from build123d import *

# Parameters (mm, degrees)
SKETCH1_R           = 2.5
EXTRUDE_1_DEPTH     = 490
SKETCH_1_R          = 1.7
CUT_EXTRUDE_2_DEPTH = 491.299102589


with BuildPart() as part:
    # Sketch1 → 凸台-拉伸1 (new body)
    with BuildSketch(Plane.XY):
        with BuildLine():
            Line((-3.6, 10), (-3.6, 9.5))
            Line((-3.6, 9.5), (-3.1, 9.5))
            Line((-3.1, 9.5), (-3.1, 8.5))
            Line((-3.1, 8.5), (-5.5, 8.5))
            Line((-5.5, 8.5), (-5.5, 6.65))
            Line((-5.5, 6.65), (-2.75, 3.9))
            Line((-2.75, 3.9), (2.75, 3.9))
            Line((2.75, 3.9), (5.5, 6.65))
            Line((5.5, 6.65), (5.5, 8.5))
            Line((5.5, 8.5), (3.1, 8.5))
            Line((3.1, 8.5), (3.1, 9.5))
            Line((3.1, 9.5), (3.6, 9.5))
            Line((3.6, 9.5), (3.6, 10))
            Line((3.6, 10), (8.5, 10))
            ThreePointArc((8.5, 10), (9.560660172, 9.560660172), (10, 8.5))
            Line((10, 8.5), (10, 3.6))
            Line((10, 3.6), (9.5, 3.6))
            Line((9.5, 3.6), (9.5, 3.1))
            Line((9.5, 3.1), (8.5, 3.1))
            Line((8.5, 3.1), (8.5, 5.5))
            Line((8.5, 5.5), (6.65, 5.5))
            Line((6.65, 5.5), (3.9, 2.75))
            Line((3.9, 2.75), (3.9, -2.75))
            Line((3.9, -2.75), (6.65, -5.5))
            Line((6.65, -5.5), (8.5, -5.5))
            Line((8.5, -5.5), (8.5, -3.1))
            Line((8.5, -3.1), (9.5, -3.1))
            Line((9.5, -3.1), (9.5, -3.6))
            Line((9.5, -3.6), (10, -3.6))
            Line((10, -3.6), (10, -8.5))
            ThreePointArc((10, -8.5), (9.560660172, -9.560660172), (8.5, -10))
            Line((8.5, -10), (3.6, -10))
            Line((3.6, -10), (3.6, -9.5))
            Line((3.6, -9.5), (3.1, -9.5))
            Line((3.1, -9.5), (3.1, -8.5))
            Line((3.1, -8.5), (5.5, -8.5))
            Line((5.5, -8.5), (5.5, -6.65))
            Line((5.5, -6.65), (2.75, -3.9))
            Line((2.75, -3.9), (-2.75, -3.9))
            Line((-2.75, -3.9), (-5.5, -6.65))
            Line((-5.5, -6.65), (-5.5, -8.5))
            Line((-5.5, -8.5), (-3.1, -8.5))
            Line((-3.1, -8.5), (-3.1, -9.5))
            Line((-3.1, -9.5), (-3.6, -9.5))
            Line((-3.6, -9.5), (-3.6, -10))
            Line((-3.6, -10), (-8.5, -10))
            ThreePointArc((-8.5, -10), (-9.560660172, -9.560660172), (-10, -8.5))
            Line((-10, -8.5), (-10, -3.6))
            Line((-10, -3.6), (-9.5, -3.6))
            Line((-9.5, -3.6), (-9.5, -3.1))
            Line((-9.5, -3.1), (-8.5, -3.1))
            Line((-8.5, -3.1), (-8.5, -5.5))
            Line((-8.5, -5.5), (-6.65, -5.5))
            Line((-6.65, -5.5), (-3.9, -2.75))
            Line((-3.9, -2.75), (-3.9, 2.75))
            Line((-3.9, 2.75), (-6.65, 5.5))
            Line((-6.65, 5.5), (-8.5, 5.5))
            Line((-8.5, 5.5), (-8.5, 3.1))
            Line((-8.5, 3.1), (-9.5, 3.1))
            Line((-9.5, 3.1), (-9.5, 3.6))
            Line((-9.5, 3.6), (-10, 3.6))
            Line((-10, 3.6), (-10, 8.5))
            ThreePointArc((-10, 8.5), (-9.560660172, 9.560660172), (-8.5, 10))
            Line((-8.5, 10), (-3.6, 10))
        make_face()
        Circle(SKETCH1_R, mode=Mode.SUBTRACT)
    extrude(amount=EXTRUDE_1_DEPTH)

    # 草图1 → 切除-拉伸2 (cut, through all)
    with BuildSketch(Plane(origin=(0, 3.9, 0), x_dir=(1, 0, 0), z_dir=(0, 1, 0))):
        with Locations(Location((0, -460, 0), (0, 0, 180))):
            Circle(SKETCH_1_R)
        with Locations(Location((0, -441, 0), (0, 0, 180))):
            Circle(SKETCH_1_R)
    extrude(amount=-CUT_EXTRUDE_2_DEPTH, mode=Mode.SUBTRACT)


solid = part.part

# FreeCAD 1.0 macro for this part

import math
import FreeCAD as App
import Part
import Sketcher

V = App.Vector
Q = App.Units.Quantity

doc = App.newDocument("Part")
params = doc.addObject("Spreadsheet::Sheet", "Params")
for row, (alias, value) in enumerate([
    ("sketch1_diameter", "5 mm"),
    ("sketch1_radius", "1.5 mm"),
    ("sketch1_width", "1 mm"),
    ("sketch1_width2", "4.9 mm"),
    ("sketch1_width3", "2.4 mm"),
    ("pad1_length", "490 mm"),
    ("sketch2_diameter", "3.4 mm"),
], start=1):
    params.set(f"A{row}", alias)
    params.set(f"B{row}", "=" + value)
    params.setAlias(f"B{row}", alias)

body = doc.addObject("PartDesign::Body", "Body")

# Sketch on XY plane
sketch1 = body.newObject("Sketcher::SketchObject", "Sketch")
sketch1.AttachmentSupport = (doc.getObject("XY_Plane"), [""])
sketch1.MapMode = "FlatFace"
sketch1.addGeometry(Part.LineSegment(V(-3.6, 9.5, 0), V(-3.6, 10, 0)), False)
sketch1.addGeometry(Part.LineSegment(V(-3.6, 10, 0), V(-8.5, 10, 0)), False)
sketch1.addGeometry(Part.ArcOfCircle(Part.Circle(V(-8.5, 8.5, 0), V(0, 0, 1), 1.5), math.radians(90), math.radians(180)), False)
sketch1.addGeometry(Part.LineSegment(V(-10, 8.5, 0), V(-10, 3.6, 0)), False)
sketch1.addGeometry(Part.LineSegment(V(-10, 3.6, 0), V(-9.5, 3.6, 0)), False)
sketch1.addGeometry(Part.LineSegment(V(-9.5, 3.6, 0), V(-9.5, 3.1, 0)), False)
sketch1.addGeometry(Part.LineSegment(V(-9.5, 3.1, 0), V(-8.5, 3.1, 0)), False)
sketch1.addGeometry(Part.LineSegment(V(-8.5, 3.1, 0), V(-8.5, 5.5, 0)), False)
sketch1.addGeometry(Part.LineSegment(V(-8.5, 5.5, 0), V(-6.7, 5.5, 0)), False)
sketch1.addGeometry(Part.LineSegment(V(-6.7, 5.5, 0), V(-3.9, 2.8, 0)), False)
sketch1.addGeometry(Part.LineSegment(V(-3.9, 2.8, 0), V(-3.9, -2.8, 0)), False)
sketch1.addGeometry(Part.LineSegment(V(-3.9, -2.8, 0), V(-6.7, -5.5, 0)), False)
sketch1.addGeometry(Part.LineSegment(V(-6.7, -5.5, 0), V(-8.5, -5.5, 0)), False)
sketch1.addGeometry(Part.LineSegment(V(-8.5, -5.5, 0), V(-8.5, -3.1, 0)), False)
sketch1.addGeometry(Part.LineSegment(V(-8.5, -3.1, 0), V(-9.5, -3.1, 0)), False)
sketch1.addGeometry(Part.LineSegment(V(-9.5, -3.1, 0), V(-9.5, -3.6, 0)), False)
sketch1.addGeometry(Part.LineSegment(V(-9.5, -3.6, 0), V(-10, -3.6, 0)), False)
sketch1.addGeometry(Part.LineSegment(V(-10, -3.6, 0), V(-10, -8.5, 0)), False)
sketch1.addGeometry(Part.ArcOfCircle(Part.Circle(V(-8.5, -8.5, 0), V(0, 0, 1), 1.5), math.radians(180), math.radians(270)), False)
sketch1.addGeometry(Part.LineSegment(V(-8.5, -10, 0), V(-3.6, -10, 0)), False)
sketch1.addGeometry(Part.LineSegment(V(-3.6, -10, 0), V(-3.6, -9.5, 0)), False)
sketch1.addGeometry(Part.LineSegment(V(-3.6, -9.5, 0), V(-3.1, -9.5, 0)), False)
sketch1.addGeometry(Part.LineSegment(V(-3.1, -9.5, 0), V(-3.1, -8.5, 0)), False)
sketch1.addGeometry(Part.LineSegment(V(-3.1, -8.5, 0), V(-5.5, -8.5, 0)), False)
sketch1.addGeometry(Part.LineSegment(V(-5.5, -8.5, 0), V(-5.5, -6.7, 0)), False)
sketch1.addGeometry(Part.LineSegment(V(-5.5, -6.7, 0), V(-2.8, -3.9, 0)), False)
sketch1.addGeometry(Part.LineSegment(V(-2.8, -3.9, 0), V(2.8, -3.9, 0)), False)
sketch1.addGeometry(Part.LineSegment(V(2.8, -3.9, 0), V(5.5, -6.7, 0)), False)
sketch1.addGeometry(Part.LineSegment(V(5.5, -6.7, 0), V(5.5, -8.5, 0)), False)
sketch1.addGeometry(Part.LineSegment(V(5.5, -8.5, 0), V(3.1, -8.5, 0)), False)
sketch1.addGeometry(Part.LineSegment(V(3.1, -8.5, 0), V(3.1, -9.5, 0)), False)
sketch1.addGeometry(Part.LineSegment(V(3.1, -9.5, 0), V(3.6, -9.5, 0)), False)
sketch1.addGeometry(Part.LineSegment(V(3.6, -9.5, 0), V(3.6, -10, 0)), False)
sketch1.addGeometry(Part.LineSegment(V(3.6, -10, 0), V(8.5, -10, 0)), False)
sketch1.addGeometry(Part.ArcOfCircle(Part.Circle(V(8.5, -8.5, 0), V(0, 0, 1), 1.5), math.radians(-90), math.radians(0)), False)
sketch1.addGeometry(Part.LineSegment(V(10, -8.5, 0), V(10, -3.6, 0)), False)
sketch1.addGeometry(Part.LineSegment(V(10, -3.6, 0), V(9.5, -3.6, 0)), False)
sketch1.addGeometry(Part.LineSegment(V(9.5, -3.6, 0), V(9.5, -3.1, 0)), False)
sketch1.addGeometry(Part.LineSegment(V(9.5, -3.1, 0), V(8.5, -3.1, 0)), False)
sketch1.addGeometry(Part.LineSegment(V(8.5, -3.1, 0), V(8.5, -5.5, 0)), False)
sketch1.addGeometry(Part.LineSegment(V(8.5, -5.5, 0), V(6.7, -5.5, 0)), False)
sketch1.addGeometry(Part.LineSegment(V(6.7, -5.5, 0), V(3.9, -2.8, 0)), False)
sketch1.addGeometry(Part.LineSegment(V(3.9, -2.8, 0), V(3.9, 2.8, 0)), False)
sketch1.addGeometry(Part.LineSegment(V(3.9, 2.8, 0), V(6.7, 5.5, 0)), False)
sketch1.addGeometry(Part.LineSegment(V(6.7, 5.5, 0), V(8.5, 5.5, 0)), False)
sketch1.addGeometry(Part.LineSegment(V(8.5, 5.5, 0), V(8.5, 3.1, 0)), False)
sketch1.addGeometry(Part.LineSegment(V(8.5, 3.1, 0), V(9.5, 3.1, 0)), False)
sketch1.addGeometry(Part.LineSegment(V(9.5, 3.1, 0), V(9.5, 3.6, 0)), False)
sketch1.addGeometry(Part.LineSegment(V(9.5, 3.6, 0), V(10, 3.6, 0)), False)
sketch1.addGeometry(Part.LineSegment(V(10, 3.6, 0), V(10, 8.5, 0)), False)
sketch1.addGeometry(Part.ArcOfCircle(Part.Circle(V(8.5, 8.5, 0), V(0, 0, 1), 1.5), math.radians(0), math.radians(90)), False)
sketch1.addGeometry(Part.LineSegment(V(8.5, 10, 0), V(3.6, 10, 0)), False)
sketch1.addGeometry(Part.LineSegment(V(3.6, 10, 0), V(3.6, 9.5, 0)), False)
sketch1.addGeometry(Part.LineSegment(V(3.6, 9.5, 0), V(3.1, 9.5, 0)), False)
sketch1.addGeometry(Part.LineSegment(V(3.1, 9.5, 0), V(3.1, 8.5, 0)), False)
sketch1.addGeometry(Part.LineSegment(V(3.1, 8.5, 0), V(5.5, 8.5, 0)), False)
sketch1.addGeometry(Part.LineSegment(V(5.5, 8.5, 0), V(5.5, 6.7, 0)), False)
sketch1.addGeometry(Part.LineSegment(V(5.5, 6.7, 0), V(2.8, 3.9, 0)), False)
sketch1.addGeometry(Part.LineSegment(V(2.8, 3.9, 0), V(-2.8, 3.9, 0)), False)
sketch1.addGeometry(Part.LineSegment(V(-2.8, 3.9, 0), V(-5.5, 6.7, 0)), False)
sketch1.addGeometry(Part.LineSegment(V(-5.5, 6.7, 0), V(-5.5, 8.5, 0)), False)
sketch1.addGeometry(Part.LineSegment(V(-5.5, 8.5, 0), V(-3.1, 8.5, 0)), False)
sketch1.addGeometry(Part.LineSegment(V(-3.1, 8.5, 0), V(-3.1, 9.5, 0)), False)
sketch1.addGeometry(Part.LineSegment(V(-3.1, 9.5, 0), V(-3.6, 9.5, 0)), False)
sketch1.addGeometry(Part.Circle(V(0, 0, 0), V(0, 0, 1), 2.5), False)
sketch1.addConstraint(Sketcher.Constraint("Coincident", 0, 2, 1, 1))
sketch1.addConstraint(Sketcher.Constraint("Tangent", 1, 2, 2, 1))
sketch1.addConstraint(Sketcher.Constraint("Tangent", 2, 2, 3, 1))
sketch1.addConstraint(Sketcher.Constraint("Coincident", 3, 2, 4, 1))
sketch1.addConstraint(Sketcher.Constraint("Coincident", 4, 2, 5, 1))
sketch1.addConstraint(Sketcher.Constraint("Coincident", 5, 2, 6, 1))
sketch1.addConstraint(Sketcher.Constraint("Coincident", 6, 2, 7, 1))
sketch1.addConstraint(Sketcher.Constraint("Coincident", 7, 2, 8, 1))
sketch1.addConstraint(Sketcher.Constraint("Coincident", 8, 2, 9, 1))
sketch1.addConstraint(Sketcher.Constraint("Coincident", 9, 2, 10, 1))
sketch1.addConstraint(Sketcher.Constraint("Coincident", 10, 2, 11, 1))
sketch1.addConstraint(Sketcher.Constraint("Coincident", 11, 2, 12, 1))
sketch1.addConstraint(Sketcher.Constraint("Coincident", 12, 2, 13, 1))
sketch1.addConstraint(Sketcher.Constraint("Coincident", 13, 2, 14, 1))
sketch1.addConstraint(Sketcher.Constraint("Coincident", 14, 2, 15, 1))
sketch1.addConstraint(Sketcher.Constraint("Coincident", 15, 2, 16, 1))
sketch1.addConstraint(Sketcher.Constraint("Coincident", 16, 2, 17, 1))
sketch1.addConstraint(Sketcher.Constraint("Tangent", 17, 2, 18, 1))
sketch1.addConstraint(Sketcher.Constraint("Tangent", 18, 2, 19, 1))
sketch1.addConstraint(Sketcher.Constraint("Coincident", 19, 2, 20, 1))
sketch1.addConstraint(Sketcher.Constraint("Coincident", 20, 2, 21, 1))
sketch1.addConstraint(Sketcher.Constraint("Coincident", 21, 2, 22, 1))
sketch1.addConstraint(Sketcher.Constraint("Coincident", 22, 2, 23, 1))
sketch1.addConstraint(Sketcher.Constraint("Coincident", 23, 2, 24, 1))
sketch1.addConstraint(Sketcher.Constraint("Coincident", 24, 2, 25, 1))
sketch1.addConstraint(Sketcher.Constraint("Coincident", 25, 2, 26, 1))
sketch1.addConstraint(Sketcher.Constraint("Coincident", 26, 2, 27, 1))
sketch1.addConstraint(Sketcher.Constraint("Coincident", 27, 2, 28, 1))
sketch1.addConstraint(Sketcher.Constraint("Coincident", 28, 2, 29, 1))
sketch1.addConstraint(Sketcher.Constraint("Coincident", 29, 2, 30, 1))
sketch1.addConstraint(Sketcher.Constraint("Coincident", 30, 2, 31, 1))
sketch1.addConstraint(Sketcher.Constraint("Coincident", 31, 2, 32, 1))
sketch1.addConstraint(Sketcher.Constraint("Coincident", 32, 2, 33, 1))
sketch1.addConstraint(Sketcher.Constraint("Tangent", 33, 2, 34, 1))
sketch1.addConstraint(Sketcher.Constraint("Tangent", 34, 2, 35, 1))
sketch1.addConstraint(Sketcher.Constraint("Coincident", 35, 2, 36, 1))
sketch1.addConstraint(Sketcher.Constraint("Coincident", 36, 2, 37, 1))
sketch1.addConstraint(Sketcher.Constraint("Coincident", 37, 2, 38, 1))
sketch1.addConstraint(Sketcher.Constraint("Coincident", 38, 2, 39, 1))
sketch1.addConstraint(Sketcher.Constraint("Coincident", 39, 2, 40, 1))
sketch1.addConstraint(Sketcher.Constraint("Coincident", 40, 2, 41, 1))
sketch1.addConstraint(Sketcher.Constraint("Coincident", 41, 2, 42, 1))
sketch1.addConstraint(Sketcher.Constraint("Coincident", 42, 2, 43, 1))
sketch1.addConstraint(Sketcher.Constraint("Coincident", 43, 2, 44, 1))
sketch1.addConstraint(Sketcher.Constraint("Coincident", 44, 2, 45, 1))
sketch1.addConstraint(Sketcher.Constraint("Coincident", 45, 2, 46, 1))
sketch1.addConstraint(Sketcher.Constraint("Coincident", 46, 2, 47, 1))
sketch1.addConstraint(Sketcher.Constraint("Coincident", 47, 2, 48, 1))
sketch1.addConstraint(Sketcher.Constraint("Coincident", 48, 2, 49, 1))
sketch1.addConstraint(Sketcher.Constraint("Tangent", 49, 2, 50, 1))
sketch1.addConstraint(Sketcher.Constraint("Tangent", 50, 2, 51, 1))
sketch1.addConstraint(Sketcher.Constraint("Coincident", 51, 2, 52, 1))
sketch1.addConstraint(Sketcher.Constraint("Coincident", 52, 2, 53, 1))
sketch1.addConstraint(Sketcher.Constraint("Coincident", 53, 2, 54, 1))
sketch1.addConstraint(Sketcher.Constraint("Coincident", 54, 2, 55, 1))
sketch1.addConstraint(Sketcher.Constraint("Coincident", 55, 2, 56, 1))
sketch1.addConstraint(Sketcher.Constraint("Coincident", 56, 2, 57, 1))
sketch1.addConstraint(Sketcher.Constraint("Coincident", 57, 2, 58, 1))
sketch1.addConstraint(Sketcher.Constraint("Coincident", 58, 2, 59, 1))
sketch1.addConstraint(Sketcher.Constraint("Coincident", 59, 2, 60, 1))
sketch1.addConstraint(Sketcher.Constraint("Coincident", 60, 2, 61, 1))
sketch1.addConstraint(Sketcher.Constraint("Coincident", 61, 2, 62, 1))
sketch1.addConstraint(Sketcher.Constraint("Coincident", 62, 2, 63, 1))
sketch1.addConstraint(Sketcher.Constraint("Coincident", 63, 2, 0, 1))
sketch1.addConstraint(Sketcher.Constraint("Vertical", 0))
sketch1.addConstraint(Sketcher.Constraint("Horizontal", 1))
sketch1.addConstraint(Sketcher.Constraint("Vertical", 3))
sketch1.addConstraint(Sketcher.Constraint("Horizontal", 4))
sketch1.addConstraint(Sketcher.Constraint("Vertical", 5))
sketch1.addConstraint(Sketcher.Constraint("Horizontal", 6))
sketch1.addConstraint(Sketcher.Constraint("Vertical", 7))
sketch1.addConstraint(Sketcher.Constraint("Horizontal", 8))
sketch1.addConstraint(Sketcher.Constraint("Vertical", 10))
sketch1.addConstraint(Sketcher.Constraint("Horizontal", 12))
sketch1.addConstraint(Sketcher.Constraint("Vertical", 13))
sketch1.addConstraint(Sketcher.Constraint("Horizontal", 14))
sketch1.addConstraint(Sketcher.Constraint("Vertical", 15))
sketch1.addConstraint(Sketcher.Constraint("Horizontal", 16))
sketch1.addConstraint(Sketcher.Constraint("Vertical", 17))
sketch1.addConstraint(Sketcher.Constraint("Horizontal", 19))
sketch1.addConstraint(Sketcher.Constraint("Vertical", 20))
sketch1.addConstraint(Sketcher.Constraint("Horizontal", 21))
sketch1.addConstraint(Sketcher.Constraint("Vertical", 22))
sketch1.addConstraint(Sketcher.Constraint("Horizontal", 23))
sketch1.addConstraint(Sketcher.Constraint("Vertical", 24))
sketch1.addConstraint(Sketcher.Constraint("Horizontal", 26))
sketch1.addConstraint(Sketcher.Constraint("Vertical", 28))
sketch1.addConstraint(Sketcher.Constraint("Horizontal", 29))
sketch1.addConstraint(Sketcher.Constraint("Vertical", 30))
sketch1.addConstraint(Sketcher.Constraint("Horizontal", 31))
sketch1.addConstraint(Sketcher.Constraint("Vertical", 32))
sketch1.addConstraint(Sketcher.Constraint("Horizontal", 33))
sketch1.addConstraint(Sketcher.Constraint("Vertical", 35))
sketch1.addConstraint(Sketcher.Constraint("Horizontal", 36))
sketch1.addConstraint(Sketcher.Constraint("Vertical", 37))
sketch1.addConstraint(Sketcher.Constraint("Horizontal", 38))
sketch1.addConstraint(Sketcher.Constraint("Vertical", 39))
sketch1.addConstraint(Sketcher.Constraint("Horizontal", 40))
sketch1.addConstraint(Sketcher.Constraint("Vertical", 42))
sketch1.addConstraint(Sketcher.Constraint("Horizontal", 44))
sketch1.addConstraint(Sketcher.Constraint("Vertical", 45))
sketch1.addConstraint(Sketcher.Constraint("Horizontal", 46))
sketch1.addConstraint(Sketcher.Constraint("Vertical", 47))
sketch1.addConstraint(Sketcher.Constraint("Horizontal", 48))
sketch1.addConstraint(Sketcher.Constraint("Vertical", 49))
sketch1.addConstraint(Sketcher.Constraint("Horizontal", 51))
sketch1.addConstraint(Sketcher.Constraint("Vertical", 52))
sketch1.addConstraint(Sketcher.Constraint("Horizontal", 53))
sketch1.addConstraint(Sketcher.Constraint("Vertical", 54))
sketch1.addConstraint(Sketcher.Constraint("Horizontal", 55))
sketch1.addConstraint(Sketcher.Constraint("Vertical", 56))
sketch1.addConstraint(Sketcher.Constraint("Horizontal", 58))
sketch1.addConstraint(Sketcher.Constraint("Vertical", 60))
sketch1.addConstraint(Sketcher.Constraint("Horizontal", 61))
sketch1.addConstraint(Sketcher.Constraint("Vertical", 62))
sketch1.addConstraint(Sketcher.Constraint("Horizontal", 63))
sketch1.addConstraint(Sketcher.Constraint("Coincident", 64, 3, -1, 1))
sketch1.addConstraint(Sketcher.Constraint("Equal", 2, 18))
sketch1.addConstraint(Sketcher.Constraint("Equal", 18, 34))
sketch1.addConstraint(Sketcher.Constraint("Equal", 34, 50))
sketch1.addConstraint(Sketcher.Constraint("Symmetric", 2, 3, 34, 3, -1, 1))
sketch1.addConstraint(Sketcher.Constraint("Symmetric", 18, 3, 50, 3, -1, 1))
sketch1.addConstraint(Sketcher.Constraint("Symmetric", 4, 2, 36, 2, -1, 1))
sketch1.addConstraint(Sketcher.Constraint("Symmetric", 6, 2, 38, 2, -1, 1))
sketch1.addConstraint(Sketcher.Constraint("Symmetric", 8, 2, 40, 2, -1, 1))
sketch1.addConstraint(Sketcher.Constraint("Symmetric", 9, 2, 41, 2, -1, 1))
sketch1.addConstraint(Sketcher.Constraint("Symmetric", 11, 2, 43, 2, -1, 1))
sketch1.addConstraint(Sketcher.Constraint("Symmetric", 13, 2, 45, 2, -1, 1))
sketch1.addConstraint(Sketcher.Constraint("Symmetric", 15, 2, 47, 2, -1, 1))
sketch1.addConstraint(Sketcher.Constraint("Symmetric", 20, 2, 52, 2, -1, 1))
sketch1.addConstraint(Sketcher.Constraint("Symmetric", 22, 2, 54, 2, -1, 1))
sketch1.addConstraint(Sketcher.Constraint("Symmetric", 24, 2, 56, 2, -1, 1))
sketch1.addConstraint(Sketcher.Constraint("Symmetric", 25, 2, 57, 2, -1, 1))
sketch1.addConstraint(Sketcher.Constraint("Symmetric", 27, 2, 59, 2, -1, 1))
sketch1.addConstraint(Sketcher.Constraint("Symmetric", 29, 2, 61, 2, -1, 1))
sketch1.addConstraint(Sketcher.Constraint("Symmetric", 31, 2, 63, 2, -1, 1))
sketch1.addConstraint(Sketcher.Constraint("Symmetric", 18, 3, 34, 3, -2))
sketch1.addConstraint(Sketcher.Constraint("Symmetric", 24, 2, 27, 2, -2))
sketch1.addConstraint(Sketcher.Constraint("Symmetric", 22, 2, 29, 2, -2))
sketch1.addConstraint(Sketcher.Constraint("Symmetric", 20, 2, 31, 2, -2))
sketch1.addConstraint(Sketcher.Constraint("Symmetric", 15, 2, 36, 2, -2))
sketch1.addConstraint(Sketcher.Constraint("Symmetric", 13, 2, 38, 2, -2))
sketch1.addConstraint(Sketcher.Constraint("Symmetric", 11, 2, 40, 2, -2))
sketch1.addConstraint(Sketcher.Constraint("Perpendicular", 9, 11))
sketch1.addConstraint(Sketcher.Constraint("Parallel", 11, 25))
sketch1.addConstraint(Sketcher.Constraint("Perpendicular", 25, 27))
sketch1.addConstraint(Sketcher.Constraint("Perpendicular", 41, 43))
sketch1.addConstraint(Sketcher.Constraint("Perpendicular", 57, 59))
sketch1.addConstraint(Sketcher.Constraint("Horizontal", 17, 2, 22, 2))
sketch1.addConstraint(Sketcher.Constraint("Horizontal", 10, 2, 41, 2))
sketch1.addConstraint(Sketcher.Constraint("Vertical", 1, 2, 6, 2))
sketch1.addConstraint(Sketcher.Constraint("Equal", 16, 21))
sketch1.addConstraint(Sketcher.Constraint("Equal", 63, 0))
sketch1.addConstraint(Sketcher.Constraint("Equal", 51, 3))
sketch1.addConstraint(Sketcher.Constraint("Equal", 0, 5))
sketch1.addConstraint(Sketcher.Constraint("Equal", 61, 7))
sketch1.addConstraint(Sketcher.Constraint("Equal", 58, 10))
sketch1.addConstraint(Sketcher.Constraint("Equal", 44, 24))
sketch1.addConstraint(Sketcher.Constraint("Equal", 11, 25))
sketch1.addConstraint(Sketcher.Constraint("Diameter", 64, Q("5 mm")))
sketch1.addConstraint(Sketcher.Constraint("Radius", 2, Q("1.5 mm")))
sketch1.addConstraint(Sketcher.Constraint("DistanceX", 6, 1, 6, 2, Q("1 mm")))
sketch1.addConstraint(Sketcher.Constraint("DistanceX", 1, 2, 1, 1, Q("4.9 mm")))
sketch1.addConstraint(Sketcher.Constraint("DistanceX", 23, 2, 23, 1, Q("2.4 mm")))
sketch1.addConstraint(Sketcher.Constraint("DistanceX", 26, 1, 26, 2, Q("5.5 mm")))
sketch1.addConstraint(Sketcher.Constraint("DistanceY", -1, 1, 0, 2, Q("10 mm")))
sketch1.addConstraint(Sketcher.Constraint("DistanceX", 8, 1, 8, 2, Q("1.85 mm")))
sketch1.setExpression("Constraints[159]", "Params.sketch1_diameter")
sketch1.setExpression("Constraints[160]", "Params.sketch1_radius")
sketch1.setExpression("Constraints[161]", "Params.sketch1_width")
sketch1.setExpression("Constraints[162]", "Params.sketch1_width2")
sketch1.setExpression("Constraints[163]", "Params.sketch1_width3")
pad1 = body.newObject("PartDesign::Pad", "Pad")
pad1.Profile = sketch1
pad1.setExpression("Length", "Params.pad1_length")

# Sketch on XZ plane
sketch2 = body.newObject("Sketcher::SketchObject", "Sketch001")
sketch2.AttachmentSupport = (doc.getObject("XZ_Plane"), [""])
sketch2.MapMode = "FlatFace"
sketch2.AttachmentOffset = App.Placement(V(0, 0, -3.9), App.Rotation())
sketch2.addGeometry(Part.Circle(V(0, 460, 0), V(0, 0, 1), 1.7), False)
sketch2.addGeometry(Part.Circle(V(0, 441, 0), V(0, 0, 1), 1.7), False)
sketch2.addConstraint(Sketcher.Constraint("Equal", 0, 1))
sketch2.addConstraint(Sketcher.Constraint("PointOnObject", 0, 3, -2))
sketch2.addConstraint(Sketcher.Constraint("PointOnObject", 1, 3, -2))
sketch2.addConstraint(Sketcher.Constraint("Diameter", 0, Q("3.4 mm")))
sketch2.addConstraint(Sketcher.Constraint("DistanceY", -1, 1, 0, 3, Q("460 mm")))
sketch2.addConstraint(Sketcher.Constraint("DistanceY", -1, 1, 1, 3, Q("441 mm")))
sketch2.setExpression("Constraints[3]", "Params.sketch2_diameter")
pocket1 = body.newObject("PartDesign::Pocket", "Pocket")
pocket1.Profile = sketch2
pocket1.Type = "ThroughAll"
pocket1.Reversed = True

doc.recompute()
